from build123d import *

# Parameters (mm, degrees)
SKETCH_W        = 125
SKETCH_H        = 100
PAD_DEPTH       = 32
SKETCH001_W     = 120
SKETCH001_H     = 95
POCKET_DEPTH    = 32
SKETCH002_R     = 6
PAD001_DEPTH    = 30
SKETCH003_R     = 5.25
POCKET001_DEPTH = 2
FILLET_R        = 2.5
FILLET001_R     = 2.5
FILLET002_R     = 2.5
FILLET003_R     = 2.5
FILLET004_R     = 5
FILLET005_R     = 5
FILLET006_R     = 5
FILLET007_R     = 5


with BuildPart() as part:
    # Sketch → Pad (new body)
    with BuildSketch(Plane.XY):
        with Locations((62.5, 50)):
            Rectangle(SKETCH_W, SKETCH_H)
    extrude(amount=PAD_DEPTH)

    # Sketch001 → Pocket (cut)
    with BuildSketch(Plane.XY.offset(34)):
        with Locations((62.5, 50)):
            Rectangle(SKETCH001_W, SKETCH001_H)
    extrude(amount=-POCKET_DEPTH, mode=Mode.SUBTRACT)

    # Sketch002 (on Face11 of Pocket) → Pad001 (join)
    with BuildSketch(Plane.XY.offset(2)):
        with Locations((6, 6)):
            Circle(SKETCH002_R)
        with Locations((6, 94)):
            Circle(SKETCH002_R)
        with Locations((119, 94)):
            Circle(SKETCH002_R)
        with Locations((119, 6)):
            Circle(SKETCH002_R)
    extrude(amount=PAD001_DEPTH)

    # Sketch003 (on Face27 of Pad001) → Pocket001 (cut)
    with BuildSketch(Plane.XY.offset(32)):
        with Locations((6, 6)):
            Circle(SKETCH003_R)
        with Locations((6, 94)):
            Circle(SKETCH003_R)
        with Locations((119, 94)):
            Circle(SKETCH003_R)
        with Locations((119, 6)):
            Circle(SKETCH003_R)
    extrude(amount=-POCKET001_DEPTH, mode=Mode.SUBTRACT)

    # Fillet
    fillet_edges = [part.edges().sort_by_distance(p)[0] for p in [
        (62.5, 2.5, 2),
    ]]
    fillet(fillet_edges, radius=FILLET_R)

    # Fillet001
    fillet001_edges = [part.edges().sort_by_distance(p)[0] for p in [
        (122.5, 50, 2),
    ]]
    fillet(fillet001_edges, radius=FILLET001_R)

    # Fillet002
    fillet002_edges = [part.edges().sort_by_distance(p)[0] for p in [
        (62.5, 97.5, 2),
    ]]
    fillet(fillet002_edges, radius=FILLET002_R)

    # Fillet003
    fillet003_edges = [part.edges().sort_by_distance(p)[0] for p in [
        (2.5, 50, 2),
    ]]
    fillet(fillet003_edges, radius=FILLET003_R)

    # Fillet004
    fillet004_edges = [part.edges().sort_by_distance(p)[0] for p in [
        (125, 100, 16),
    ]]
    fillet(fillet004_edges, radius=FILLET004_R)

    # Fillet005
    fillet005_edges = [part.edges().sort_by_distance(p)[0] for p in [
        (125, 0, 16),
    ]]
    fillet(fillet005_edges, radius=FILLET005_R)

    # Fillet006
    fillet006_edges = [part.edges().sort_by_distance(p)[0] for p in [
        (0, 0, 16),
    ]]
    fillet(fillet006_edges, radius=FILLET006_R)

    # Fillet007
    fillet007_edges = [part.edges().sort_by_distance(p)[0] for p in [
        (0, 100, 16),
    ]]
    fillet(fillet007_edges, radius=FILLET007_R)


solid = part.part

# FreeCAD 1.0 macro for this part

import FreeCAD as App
import Part
import Sketcher
Q = App.Units.Quantity


def edges_at(feature, points):
    """Names of the edges that pass closest to the given points."""
    edges = feature.Shape.Edges
    near = lambda p: min(range(len(edges)), key=lambda i: edges[i].distToShape(Part.Vertex(*p))[0])
    return sorted({f"Edge{near(p) + 1}" for p in points})


def add_polygon(sketch, points):
    """Adds a closed chain of lines whose ends are joined by coincident constraints."""
    first, n = sketch.GeometryCount, len(points)
    for a, b in zip(points, points[1:] + points[:1]):
        sketch.addGeometry(Part.LineSegment(App.Vector(*a, 0), App.Vector(*b, 0)), False)
    for i in range(n):
        sketch.addConstraint(Sketcher.Constraint("Coincident", first + i, 2, first + (i + 1) % n, 1))

doc = App.newDocument("Part")
body = doc.addObject("PartDesign::Body", "Body")

sketch1 = doc.addObject("Sketcher::SketchObject", "Sketch")
body.addObject(sketch1)
sketch1.AttachmentSupport = (doc.XY_Plane, [""])
sketch1.MapMode = "FlatFace"
add_polygon(sketch1, [(0, 100), (0, 0), (125, 0), (125, 100)])
sketch1.addConstraint([
    Sketcher.Constraint("Vertical", 0),
    Sketcher.Constraint("Horizontal", 1),
    Sketcher.Constraint("Vertical", 2),
    Sketcher.Constraint("Horizontal", 3),
    Sketcher.Constraint("Coincident", 0, 2, -1, 1),
    Sketcher.Constraint("DistanceX", 1, 1, 1, 2, Q("125 mm")),
    Sketcher.Constraint("DistanceY", 0, 2, 0, 1, Q("100 mm")),
])
pad1 = doc.addObject("PartDesign::Pad", "Pad")
body.addObject(pad1)
pad1.Profile = sketch1
pad1.Length = 32

sketch2 = doc.addObject("Sketcher::SketchObject", "Sketch001")
body.addObject(sketch2)
sketch2.AttachmentSupport = (doc.XY_Plane, [""])
sketch2.MapMode = "FlatFace"
sketch2.AttachmentOffset = App.Placement(App.Vector(0, 0, 34), App.Rotation())
add_polygon(sketch2, [(2.5, 97.5), (2.5, 2.5), (122.5, 2.5), (122.5, 97.5)])
sketch2.addConstraint([
    Sketcher.Constraint("Vertical", 0),
    Sketcher.Constraint("Horizontal", 1),
    Sketcher.Constraint("Vertical", 2),
    Sketcher.Constraint("Horizontal", 3),
    Sketcher.Constraint("DistanceX", 1, 1, 1, 2, Q("120 mm")),
    Sketcher.Constraint("DistanceY", 0, 2, 0, 1, Q("95 mm")),
    Sketcher.Constraint("DistanceX", -1, 1, 0, 2, Q("2.5 mm")),
    Sketcher.Constraint("DistanceY", -1, 1, 0, 2, Q("2.5 mm")),
])
pocket1 = doc.addObject("PartDesign::Pocket", "Pocket")
body.addObject(pocket1)
pocket1.Profile = sketch2
pocket1.Length = 32

sketch3 = doc.addObject("Sketcher::SketchObject", "Sketch002")
body.addObject(sketch3)
sketch3.AttachmentSupport = (doc.XY_Plane, [""])
sketch3.MapMode = "FlatFace"
sketch3.AttachmentOffset = App.Placement(App.Vector(0, 0, 2), App.Rotation())
sketch3.addGeometry([
    Part.Circle(App.Vector(6, 6, 0), App.Vector(0, 0, 1), 6),
    Part.Circle(App.Vector(6, 94, 0), App.Vector(0, 0, 1), 6),
    Part.Circle(App.Vector(119, 94, 0), App.Vector(0, 0, 1), 6),
    Part.Circle(App.Vector(119, 6, 0), App.Vector(0, 0, 1), 6),
], False)
sketch3.addConstraint([
    Sketcher.Constraint("Equal", 0, 1),
    Sketcher.Constraint("Equal", 1, 2),
    Sketcher.Constraint("Equal", 2, 3),
    Sketcher.Constraint("Horizontal", 1, 3, 2, 3),
    Sketcher.Constraint("Horizontal", 0, 3, 3, 3),
    Sketcher.Constraint("Vertical", 0, 3, 1, 3),
    Sketcher.Constraint("Vertical", 2, 3, 3, 3),
    Sketcher.Constraint("Diameter", 0, Q("12 mm")),
    Sketcher.Constraint("DistanceX", -1, 1, 0, 3, Q("6 mm")),
    Sketcher.Constraint("DistanceY", -1, 1, 0, 3, Q("6 mm")),
    Sketcher.Constraint("DistanceY", -1, 1, 1, 3, Q("94 mm")),
    Sketcher.Constraint("DistanceX", -1, 1, 2, 3, Q("119 mm")),
])
pad2 = doc.addObject("PartDesign::Pad", "Pad001")
body.addObject(pad2)
pad2.Profile = sketch3
pad2.Length = 30

sketch4 = doc.addObject("Sketcher::SketchObject", "Sketch003")
body.addObject(sketch4)
sketch4.AttachmentSupport = (doc.XY_Plane, [""])
sketch4.MapMode = "FlatFace"
sketch4.AttachmentOffset = App.Placement(App.Vector(0, 0, 32), App.Rotation())
sketch4.addGeometry([
    Part.Circle(App.Vector(6, 6, 0), App.Vector(0, 0, 1), 5.25),
    Part.Circle(App.Vector(6, 94, 0), App.Vector(0, 0, 1), 5.25),
    Part.Circle(App.Vector(119, 94, 0), App.Vector(0, 0, 1), 5.25),
    Part.Circle(App.Vector(119, 6, 0), App.Vector(0, 0, 1), 5.25),
], False)
sketch4.addConstraint([
    Sketcher.Constraint("Equal", 0, 1),
    Sketcher.Constraint("Equal", 1, 2),
    Sketcher.Constraint("Equal", 2, 3),
    Sketcher.Constraint("Horizontal", 1, 3, 2, 3),
    Sketcher.Constraint("Horizontal", 0, 3, 3, 3),
    Sketcher.Constraint("Vertical", 0, 3, 1, 3),
    Sketcher.Constraint("Vertical", 2, 3, 3, 3),
    Sketcher.Constraint("Diameter", 0, Q("10.5 mm")),
    Sketcher.Constraint("DistanceX", -1, 1, 0, 3, Q("6 mm")),
    Sketcher.Constraint("DistanceY", -1, 1, 0, 3, Q("6 mm")),
    Sketcher.Constraint("DistanceY", -1, 1, 1, 3, Q("94 mm")),
    Sketcher.Constraint("DistanceX", -1, 1, 2, 3, Q("119 mm")),
])
pocket2 = doc.addObject("PartDesign::Pocket", "Pocket001")
body.addObject(pocket2)
pocket2.Profile = sketch4
pocket2.Length = 2
doc.recompute()

fillet = doc.addObject("PartDesign::Fillet", "Fillet")
body.addObject(fillet)
fillet.Base = (pocket2, edges_at(pocket2, [(62.5, 2.5, 2)]))
fillet.Radius = 2.5
doc.recompute()

fillet2 = doc.addObject("PartDesign::Fillet", "Fillet001")
body.addObject(fillet2)
fillet2.Base = (fillet, edges_at(fillet, [(122.5, 50, 2)]))
fillet2.Radius = 2.5
doc.recompute()

fillet3 = doc.addObject("PartDesign::Fillet", "Fillet002")
body.addObject(fillet3)
fillet3.Base = (fillet2, edges_at(fillet2, [(62.5, 97.5, 2)]))
fillet3.Radius = 2.5
doc.recompute()

fillet4 = doc.addObject("PartDesign::Fillet", "Fillet003")
body.addObject(fillet4)
fillet4.Base = (fillet3, edges_at(fillet3, [(2.5, 50, 2)]))
fillet4.Radius = 2.5
doc.recompute()

fillet5 = doc.addObject("PartDesign::Fillet", "Fillet004")
body.addObject(fillet5)
fillet5.Base = (fillet4, edges_at(fillet4, [(125, 100, 16)]))
fillet5.Radius = 5
doc.recompute()

fillet6 = doc.addObject("PartDesign::Fillet", "Fillet005")
body.addObject(fillet6)
fillet6.Base = (fillet5, edges_at(fillet5, [(125, 0, 16)]))
fillet6.Radius = 5
doc.recompute()

fillet7 = doc.addObject("PartDesign::Fillet", "Fillet006")
body.addObject(fillet7)
fillet7.Base = (fillet6, edges_at(fillet6, [(0, 0, 16)]))
fillet7.Radius = 5
doc.recompute()

fillet8 = doc.addObject("PartDesign::Fillet", "Fillet007")
body.addObject(fillet8)
fillet8.Base = (fillet7, edges_at(fillet7, [(0, 100, 16)]))
fillet8.Radius = 5

doc.recompute()
